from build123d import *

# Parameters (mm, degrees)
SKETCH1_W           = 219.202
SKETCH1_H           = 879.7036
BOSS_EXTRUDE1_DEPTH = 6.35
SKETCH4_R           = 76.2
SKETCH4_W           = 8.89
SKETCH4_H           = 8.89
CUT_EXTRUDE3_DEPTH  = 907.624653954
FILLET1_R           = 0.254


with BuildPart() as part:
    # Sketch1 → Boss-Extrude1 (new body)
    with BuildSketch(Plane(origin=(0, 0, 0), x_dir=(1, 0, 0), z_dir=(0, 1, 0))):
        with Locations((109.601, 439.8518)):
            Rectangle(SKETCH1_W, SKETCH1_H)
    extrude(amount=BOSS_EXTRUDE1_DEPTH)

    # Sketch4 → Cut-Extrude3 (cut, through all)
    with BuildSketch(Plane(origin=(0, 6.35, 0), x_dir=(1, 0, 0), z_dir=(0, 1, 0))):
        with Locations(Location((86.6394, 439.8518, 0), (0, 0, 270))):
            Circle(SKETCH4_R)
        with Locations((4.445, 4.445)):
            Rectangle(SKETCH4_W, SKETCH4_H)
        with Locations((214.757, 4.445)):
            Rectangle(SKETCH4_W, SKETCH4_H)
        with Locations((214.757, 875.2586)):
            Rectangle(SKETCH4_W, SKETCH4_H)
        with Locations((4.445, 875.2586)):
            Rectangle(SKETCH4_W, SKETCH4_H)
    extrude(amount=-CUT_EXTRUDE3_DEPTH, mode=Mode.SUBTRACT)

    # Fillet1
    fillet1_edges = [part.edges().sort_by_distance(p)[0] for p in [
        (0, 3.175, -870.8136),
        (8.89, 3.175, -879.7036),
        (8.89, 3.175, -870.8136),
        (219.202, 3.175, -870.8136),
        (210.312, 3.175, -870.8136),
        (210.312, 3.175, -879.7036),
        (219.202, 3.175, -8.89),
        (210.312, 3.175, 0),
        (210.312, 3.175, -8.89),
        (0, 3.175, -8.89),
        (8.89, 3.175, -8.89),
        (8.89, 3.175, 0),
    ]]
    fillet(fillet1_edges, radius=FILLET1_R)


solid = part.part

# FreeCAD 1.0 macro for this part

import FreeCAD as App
import Part
import Sketcher
Q = App.Units.Quantity


def edges_at(feature, points):
    """Names of the edges that pass closest to the given points."""
    edges = feature.Shape.Edges
    near = lambda p: min(range(len(edges)), key=lambda i: edges[i].distToShape(Part.Vertex(*p))[0])
    return sorted({f"Edge{near(p) + 1}" for p in points})


def add_polygon(sketch, points):
    """Adds a closed chain of lines whose ends are joined by coincident constraints."""
    first, n = sketch.GeometryCount, len(points)
    for a, b in zip(points, points[1:] + points[:1]):
        sketch.addGeometry(Part.LineSegment(App.Vector(*a, 0), App.Vector(*b, 0)), False)
    for i in range(n):
        sketch.addConstraint(Sketcher.Constraint("Coincident", first + i, 2, first + (i + 1) % n, 1))

doc = App.newDocument("Part")
body = doc.addObject("PartDesign::Body", "Body")

# Sketch on XZ plane
sketch1 = body.newObject("Sketcher::SketchObject", "Sketch")
sketch1.AttachmentSupport = (doc.getObject("XZ_Plane"), [""])
sketch1.MapMode = "FlatFace"
add_polygon(sketch1, [(0, -880), (0, 0), (219, 0), (219, -880)])  # lines 0-3
sketch1.addConstraint(Sketcher.Constraint("Vertical", 0))
sketch1.addConstraint(Sketcher.Constraint("Horizontal", 1))
sketch1.addConstraint(Sketcher.Constraint("Vertical", 2))
sketch1.addConstraint(Sketcher.Constraint("Horizontal", 3))
sketch1.addConstraint(Sketcher.Constraint("Coincident", 0, 2, -1, 1))
sketch1.addConstraint(Sketcher.Constraint("DistanceX", 1, 1, 1, 2, Q("8.63 in")))
sketch1.addConstraint(Sketcher.Constraint("DistanceY", 0, 1, 0, 2, Q("34.634 in")))
pad1 = body.newObject("PartDesign::Pad", "Pad")
pad1.Profile = sketch1
pad1.Length = Q("0.25 in")
pad1.Reversed = True

# Sketch on XZ plane
sketch2 = body.newObject("Sketcher::SketchObject", "Sketch001")
sketch2.AttachmentSupport = (doc.getObject("XZ_Plane"), [""])
sketch2.MapMode = "FlatFace"
sketch2.AttachmentOffset = App.Placement(App.Vector(0, 0, -0.25 * 25.4), App.Rotation())
sketch2.addGeometry(Part.Circle(App.Vector(87, -440, 0), App.Vector(0, 0, 1), 76), False)  # 0
add_polygon(sketch2, [(0, -9), (0, 0), (9, 0), (9, -9)])  # lines 1-4
add_polygon(sketch2, [(210, -9), (210, 0), (219, 0), (219, -9)])  # lines 5-8
add_polygon(sketch2, [(210, -880), (210, -871), (219, -871), (219, -880)])  # lines 9-12
add_polygon(sketch2, [(0, -880), (0, -871), (9, -871), (9, -880)])  # lines 13-16
sketch2.addConstraint(Sketcher.Constraint("Vertical", 1))
sketch2.addConstraint(Sketcher.Constraint("Horizontal", 2))
sketch2.addConstraint(Sketcher.Constraint("Vertical", 3))
sketch2.addConstraint(Sketcher.Constraint("Horizontal", 4))
sketch2.addConstraint(Sketcher.Constraint("Vertical", 5))
sketch2.addConstraint(Sketcher.Constraint("Horizontal", 6))
sketch2.addConstraint(Sketcher.Constraint("Vertical", 7))
sketch2.addConstraint(Sketcher.Constraint("Horizontal", 8))
sketch2.addConstraint(Sketcher.Constraint("Vertical", 9))
sketch2.addConstraint(Sketcher.Constraint("Horizontal", 10))
sketch2.addConstraint(Sketcher.Constraint("Vertical", 11))
sketch2.addConstraint(Sketcher.Constraint("Horizontal", 12))
sketch2.addConstraint(Sketcher.Constraint("Vertical", 13))
sketch2.addConstraint(Sketcher.Constraint("Horizontal", 14))
sketch2.addConstraint(Sketcher.Constraint("Vertical", 15))
sketch2.addConstraint(Sketcher.Constraint("Horizontal", 16))
sketch2.addConstraint(Sketcher.Constraint("Coincident", 1, 2, -1, 1))
sketch2.addConstraint(Sketcher.Constraint("PointOnObject", 5, 2, -1))
sketch2.addConstraint(Sketcher.Constraint("PointOnObject", 13, 2, -2))
sketch2.addConstraint(Sketcher.Constraint("Horizontal", 4, 2, 7, 2))
sketch2.addConstraint(Sketcher.Constraint("Horizontal", 10, 2, 13, 2))
sketch2.addConstraint(Sketcher.Constraint("Horizontal", 12, 2, 15, 2))
sketch2.addConstraint(Sketcher.Constraint("Vertical", 8, 2, 9, 2))
sketch2.addConstraint(Sketcher.Constraint("Vertical", 7, 2, 10, 2))
sketch2.addConstraint(Sketcher.Constraint("Vertical", 3, 2, 14, 2))
sketch2.addConstraint(Sketcher.Constraint("Equal", 4, 6))
sketch2.addConstraint(Sketcher.Constraint("Equal", 16, 1))
sketch2.addConstraint(Sketcher.Constraint("Equal", 7, 9))
sketch2.addConstraint(Sketcher.Constraint("Diameter", 0, Q("6 in")))
sketch2.addConstraint(Sketcher.Constraint("DistanceX", 2, 1, 2, 2, Q("0.35 in")))
sketch2.addConstraint(Sketcher.Constraint("DistanceX", -1, 1, 5, 2, Q("8.28 in")))
sketch2.addConstraint(Sketcher.Constraint("DistanceX", -1, 1, 0, 3, Q("3.411 in")))
sketch2.addConstraint(Sketcher.Constraint("DistanceY", 0, 3, -1, 1, Q("17.317 in")))
sketch2.addConstraint(Sketcher.Constraint("DistanceY", 9, 2, -1, 1, Q("34.284 in")))
pocket1 = body.newObject("PartDesign::Pocket", "Pocket")
pocket1.Profile = sketch2
pocket1.Type = "ThroughAll"
pocket1.Reversed = True
doc.recompute()

fillet = body.newObject("PartDesign::Fillet", "Fillet")
fillet.Base = (pocket1, edges_at(pocket1, [
    (0, 3.175, -870.814),
    (8.89, 3.175, -879.704),
    (8.89, 3.175, -870.814),
    (219.202, 3.175, -870.814),
    (210.312, 3.175, -870.814),
    (210.312, 3.175, -879.704),
    (219.202, 3.175, -8.89),
    (210.312, 3.175, 0),
    (210.312, 3.175, -8.89),
    (0, 3.175, -8.89),
    (8.89, 3.175, -8.89),
    (8.89, 3.175, 0),
]))
fillet.Radius = Q("0.01 in")

doc.recompute()
